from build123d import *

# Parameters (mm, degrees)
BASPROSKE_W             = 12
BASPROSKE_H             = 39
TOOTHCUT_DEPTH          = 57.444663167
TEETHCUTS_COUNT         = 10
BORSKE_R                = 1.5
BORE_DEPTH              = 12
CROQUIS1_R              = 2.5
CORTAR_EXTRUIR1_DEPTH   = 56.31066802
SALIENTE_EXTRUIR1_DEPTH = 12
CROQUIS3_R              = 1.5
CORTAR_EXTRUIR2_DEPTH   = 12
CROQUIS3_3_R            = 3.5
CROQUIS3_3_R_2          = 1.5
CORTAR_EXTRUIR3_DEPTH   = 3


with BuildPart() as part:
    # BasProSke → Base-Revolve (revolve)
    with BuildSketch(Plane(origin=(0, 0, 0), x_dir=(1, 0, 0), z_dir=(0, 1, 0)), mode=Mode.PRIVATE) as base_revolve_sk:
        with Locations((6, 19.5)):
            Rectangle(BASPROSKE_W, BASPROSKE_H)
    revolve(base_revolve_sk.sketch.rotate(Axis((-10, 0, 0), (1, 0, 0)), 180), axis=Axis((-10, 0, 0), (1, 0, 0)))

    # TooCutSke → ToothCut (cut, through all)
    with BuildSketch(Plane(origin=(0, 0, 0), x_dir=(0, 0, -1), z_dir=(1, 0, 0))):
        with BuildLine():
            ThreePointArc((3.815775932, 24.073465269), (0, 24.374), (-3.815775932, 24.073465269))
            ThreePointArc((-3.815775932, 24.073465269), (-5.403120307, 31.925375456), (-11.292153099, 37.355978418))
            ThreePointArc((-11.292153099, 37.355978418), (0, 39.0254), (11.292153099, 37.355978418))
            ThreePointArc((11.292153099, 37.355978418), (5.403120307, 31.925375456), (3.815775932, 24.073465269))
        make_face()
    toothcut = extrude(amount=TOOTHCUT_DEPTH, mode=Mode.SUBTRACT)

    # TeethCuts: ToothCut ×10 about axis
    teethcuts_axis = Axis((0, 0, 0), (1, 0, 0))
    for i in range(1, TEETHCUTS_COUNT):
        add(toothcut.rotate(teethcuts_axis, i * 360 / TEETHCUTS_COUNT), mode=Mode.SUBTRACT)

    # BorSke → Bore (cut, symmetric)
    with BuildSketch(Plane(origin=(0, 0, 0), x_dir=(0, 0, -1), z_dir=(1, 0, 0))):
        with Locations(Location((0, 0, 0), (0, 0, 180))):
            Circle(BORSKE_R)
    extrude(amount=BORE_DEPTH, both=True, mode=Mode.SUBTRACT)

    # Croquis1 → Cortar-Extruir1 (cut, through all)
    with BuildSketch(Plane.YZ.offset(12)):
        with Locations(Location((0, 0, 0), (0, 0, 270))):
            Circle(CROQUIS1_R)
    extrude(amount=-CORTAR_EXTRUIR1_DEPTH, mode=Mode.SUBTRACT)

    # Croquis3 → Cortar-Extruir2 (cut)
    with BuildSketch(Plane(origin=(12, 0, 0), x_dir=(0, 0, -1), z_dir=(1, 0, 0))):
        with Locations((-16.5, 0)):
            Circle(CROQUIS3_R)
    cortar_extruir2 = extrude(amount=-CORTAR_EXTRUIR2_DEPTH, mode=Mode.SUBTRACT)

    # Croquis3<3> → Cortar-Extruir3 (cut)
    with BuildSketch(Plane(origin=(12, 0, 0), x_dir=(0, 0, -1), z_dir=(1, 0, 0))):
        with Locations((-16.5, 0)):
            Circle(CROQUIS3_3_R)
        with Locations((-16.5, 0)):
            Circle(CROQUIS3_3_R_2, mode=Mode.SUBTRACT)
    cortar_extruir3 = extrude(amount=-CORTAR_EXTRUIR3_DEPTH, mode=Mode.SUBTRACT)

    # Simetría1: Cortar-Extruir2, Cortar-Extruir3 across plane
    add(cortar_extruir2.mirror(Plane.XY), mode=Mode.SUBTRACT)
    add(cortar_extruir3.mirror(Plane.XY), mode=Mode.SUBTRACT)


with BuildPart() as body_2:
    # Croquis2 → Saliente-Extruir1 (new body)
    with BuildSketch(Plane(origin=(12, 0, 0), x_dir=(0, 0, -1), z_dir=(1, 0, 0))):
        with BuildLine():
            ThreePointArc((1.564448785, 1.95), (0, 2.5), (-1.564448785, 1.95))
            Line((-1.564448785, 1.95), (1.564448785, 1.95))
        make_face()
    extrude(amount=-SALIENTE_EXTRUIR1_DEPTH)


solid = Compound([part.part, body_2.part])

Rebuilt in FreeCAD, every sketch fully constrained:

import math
import FreeCAD as App
import Part
import Sketcher

V = App.Vector


def add_polygon(sketch, points):
    """Adds a closed chain of lines whose ends are joined by coincident constraints."""
    first, n = sketch.GeometryCount, len(points)
    for a, b in zip(points, points[1:] + points[:1]):
        sketch.addGeometry(Part.LineSegment(App.Vector(*a, 0), App.Vector(*b, 0)), False)
    for i in range(n):
        sketch.addConstraint(Sketcher.Constraint("Coincident", first + i, 2, first + (i + 1) % n, 1))

doc = App.newDocument("Part")
body = doc.addObject("PartDesign::Body", "Body")

# Sketch on XZ plane
sketch1 = body.newObject("Sketcher::SketchObject", "Sketch")
sketch1.AttachmentSupport = (doc.getObject("XZ_Plane"), [""])
sketch1.MapMode = "FlatFace"
add_polygon(sketch1, [(0, -39), (0, 0), (12, 0), (12, -39)])  # lines 0-3
sketch1.addConstraint(Sketcher.Constraint("Vertical", 0))
sketch1.addConstraint(Sketcher.Constraint("Horizontal", 1))
sketch1.addConstraint(Sketcher.Constraint("Vertical", 2))
sketch1.addConstraint(Sketcher.Constraint("Horizontal", 3))
sketch1.addConstraint(Sketcher.Constraint("Coincident", 0, 2, -1, 1))
sketch1.addConstraint(Sketcher.Constraint("DistanceX", 1, 1, 1, 2, 12.0))
sketch1.addConstraint(Sketcher.Constraint("DistanceY", 0, 1, 0, 2, 39.0))
revolution = body.newObject("PartDesign::Revolution", "Revolution")
revolution.Profile = sketch1
revolution.ReferenceAxis = (sketch1, ["H_Axis"])
revolution.Angle = 360

# Sketch on YZ plane
sketch2 = body.newObject("Sketcher::SketchObject", "Sketch001")
sketch2.AttachmentSupport = (doc.getObject("YZ_Plane"), [""])
sketch2.MapMode = "FlatFace"
sketch2.addGeometry(Part.ArcOfCircle(Part.Circle(V(0, 0, 0), V(0, 0, 1), 24.374), math.radians(-9.006765), math.radians(9.006765)), False)
sketch2.addGeometry(Part.ArcOfCircle(Part.Circle(V(25.548764, -16.731793, 0), V(0, 0, 1), 13), math.radians(24.735748), math.radians(96.516221)), False)
sketch2.addGeometry(Part.ArcOfCircle(Part.Circle(V(0, 0, 0), V(0, 0, 1), 39.0254), math.radians(-16.819281), math.radians(16.819281)), False)
sketch2.addGeometry(Part.ArcOfCircle(Part.Circle(V(25.548764, 16.731793, 0), V(0, 0, 1), 13), math.radians(-96.516221), math.radians(-24.735748)), False)
sketch2.addConstraint(Sketcher.Constraint("Coincident", 0, 1, 1, 2))
sketch2.addConstraint(Sketcher.Constraint("Coincident", 1, 1, 2, 1))
sketch2.addConstraint(Sketcher.Constraint("Coincident", 2, 2, 3, 2))
sketch2.addConstraint(Sketcher.Constraint("Coincident", 3, 1, 0, 2))
sketch2.addConstraint(Sketcher.Constraint("Coincident", 0, 3, -1, 1))
sketch2.addConstraint(Sketcher.Constraint("Coincident", 2, 3, -1, 1))
sketch2.addConstraint(Sketcher.Constraint("Equal", 1, 3))
sketch2.addConstraint(Sketcher.Constraint("Symmetric", 1, 3, 3, 3, -1))
sketch2.addConstraint(Sketcher.Constraint("Radius", 1, 13.0))
sketch2.addConstraint(Sketcher.Constraint("Radius", 0, 24.374))
sketch2.addConstraint(Sketcher.Constraint("Radius", 2, 39.0254))
sketch2.addConstraint(Sketcher.Constraint("DistanceX", 0, 1, 1, 3, 1.475298))
sketch2.addConstraint(Sketcher.Constraint("DistanceX", -1, 1, 1, 1, 37.355978))
pocket1 = body.newObject("PartDesign::Pocket", "Pocket")
pocket1.Profile = sketch2
pocket1.Type = "ThroughAll"
pocket1.Reversed = True
doc.recompute()

polarpattern = body.newObject("PartDesign::PolarPattern", "PolarPattern")
polarpattern.Originals = [pocket1]
polarpattern.Axis = (doc.getObject("X_Axis"), [""])
polarpattern.Angle = 360
polarpattern.Occurrences = 10
body.Tip = polarpattern

# Sketch on YZ plane
sketch3 = body.newObject("Sketcher::SketchObject", "Sketch002")
sketch3.AttachmentSupport = (doc.getObject("YZ_Plane"), [""])
sketch3.MapMode = "FlatFace"
sketch3.addGeometry(Part.Circle(V(0, 0, 0), V(0, 0, 1), 1.5), False)
sketch3.addConstraint(Sketcher.Constraint("Coincident", 0, 3, -1, 1))
sketch3.addConstraint(Sketcher.Constraint("Diameter", 0, 3.0))
pocket2 = body.newObject("PartDesign::Pocket", "Pocket001")
pocket2.Profile = sketch3
pocket2.Length = 24
pocket2.Midplane = True

# Sketch on YZ plane
sketch4 = body.newObject("Sketcher::SketchObject", "Sketch003")
sketch4.AttachmentSupport = (doc.getObject("YZ_Plane"), [""])
sketch4.MapMode = "FlatFace"
sketch4.AttachmentOffset = App.Placement(V(0, 0, 12), App.Rotation())
sketch4.addGeometry(Part.Circle(V(0, 0, 0), V(0, 0, 1), 2.5), False)
sketch4.addConstraint(Sketcher.Constraint("Coincident", 0, 3, -1, 1))
sketch4.addConstraint(Sketcher.Constraint("Diameter", 0, 5.0))
pocket3 = body.newObject("PartDesign::Pocket", "Pocket002")
pocket3.Profile = sketch4
pocket3.Type = "ThroughAll"

# Sketch on YZ plane
sketch5 = body.newObject("Sketcher::SketchObject", "Sketch004")
sketch5.AttachmentSupport = (doc.getObject("YZ_Plane"), [""])
sketch5.MapMode = "FlatFace"
sketch5.AttachmentOffset = App.Placement(V(0, 0, 12), App.Rotation())
sketch5.addGeometry(Part.Circle(V(0, 16.5, 0), V(0, 0, 1), 1.5), False)
sketch5.addConstraint(Sketcher.Constraint("PointOnObject", 0, 3, -2))
sketch5.addConstraint(Sketcher.Constraint("Diameter", 0, 3.0))
sketch5.addConstraint(Sketcher.Constraint("DistanceY", -1, 1, 0, 3, 16.5))
pocket4 = body.newObject("PartDesign::Pocket", "Pocket003")
pocket4.Profile = sketch5
pocket4.Length = 12

# Sketch on YZ plane
sketch6 = body.newObject("Sketcher::SketchObject", "Sketch005")
sketch6.AttachmentSupport = (doc.getObject("YZ_Plane"), [""])
sketch6.MapMode = "FlatFace"
sketch6.AttachmentOffset = App.Placement(V(0, 0, 12), App.Rotation())
sketch6.addGeometry(Part.Circle(V(0, 16.5, 0), V(0, 0, 1), 3.5), False)
sketch6.addGeometry(Part.Circle(V(0, 16.5, 0), V(0, 0, 1), 1.5), False)
sketch6.addConstraint(Sketcher.Constraint("Coincident", 1, 3, 0, 3))
sketch6.addConstraint(Sketcher.Constraint("PointOnObject", 0, 3, -2))
sketch6.addConstraint(Sketcher.Constraint("Diameter", 0, 7.0))
sketch6.addConstraint(Sketcher.Constraint("Diameter", 1, 3.0))
sketch6.addConstraint(Sketcher.Constraint("DistanceY", -1, 1, 0, 3, 16.5))
pocket5 = body.newObject("PartDesign::Pocket", "Pocket004")
pocket5.Profile = sketch6
pocket5.Length = 3
doc.recompute()

mirrored = body.newObject("PartDesign::Mirrored", "Mirrored")
mirrored.Originals = [pocket4, pocket5]
mirrored.MirrorPlane = (doc.getObject("XY_Plane"), [""])
body.Tip = mirrored
body2 = doc.addObject("PartDesign::Body", "Body001")

# Sketch on YZ plane
sketch7 = body2.newObject("Sketcher::SketchObject", "Sketch006")
sketch7.AttachmentSupport = (doc.getObject("YZ_Plane001"), [""])
sketch7.MapMode = "FlatFace"
sketch7.AttachmentOffset = App.Placement(V(0, 0, 12), App.Rotation())
sketch7.addGeometry(Part.ArcOfCircle(Part.Circle(V(0, 0, 0), V(0, 0, 1), 2.5), math.radians(-38.739425), math.radians(38.739425)), False)
sketch7.addGeometry(Part.LineSegment(V(1.95, 1.564449, 0), V(1.95, -1.564449, 0)), False)
sketch7.addConstraint(Sketcher.Constraint("Coincident", 0, 1, 1, 2))
sketch7.addConstraint(Sketcher.Constraint("Coincident", 1, 1, 0, 2))
sketch7.addConstraint(Sketcher.Constraint("Vertical", 1))
sketch7.addConstraint(Sketcher.Constraint("Coincident", 0, 3, -1, 1))
sketch7.addConstraint(Sketcher.Constraint("Radius", 0, 2.5))
sketch7.addConstraint(Sketcher.Constraint("DistanceX", -1, 1, 0, 1, 1.95))
pad1 = body2.newObject("PartDesign::Pad", "Pad")
pad1.Profile = sketch7
pad1.Length = 12
pad1.Reversed = True

doc.recompute()
